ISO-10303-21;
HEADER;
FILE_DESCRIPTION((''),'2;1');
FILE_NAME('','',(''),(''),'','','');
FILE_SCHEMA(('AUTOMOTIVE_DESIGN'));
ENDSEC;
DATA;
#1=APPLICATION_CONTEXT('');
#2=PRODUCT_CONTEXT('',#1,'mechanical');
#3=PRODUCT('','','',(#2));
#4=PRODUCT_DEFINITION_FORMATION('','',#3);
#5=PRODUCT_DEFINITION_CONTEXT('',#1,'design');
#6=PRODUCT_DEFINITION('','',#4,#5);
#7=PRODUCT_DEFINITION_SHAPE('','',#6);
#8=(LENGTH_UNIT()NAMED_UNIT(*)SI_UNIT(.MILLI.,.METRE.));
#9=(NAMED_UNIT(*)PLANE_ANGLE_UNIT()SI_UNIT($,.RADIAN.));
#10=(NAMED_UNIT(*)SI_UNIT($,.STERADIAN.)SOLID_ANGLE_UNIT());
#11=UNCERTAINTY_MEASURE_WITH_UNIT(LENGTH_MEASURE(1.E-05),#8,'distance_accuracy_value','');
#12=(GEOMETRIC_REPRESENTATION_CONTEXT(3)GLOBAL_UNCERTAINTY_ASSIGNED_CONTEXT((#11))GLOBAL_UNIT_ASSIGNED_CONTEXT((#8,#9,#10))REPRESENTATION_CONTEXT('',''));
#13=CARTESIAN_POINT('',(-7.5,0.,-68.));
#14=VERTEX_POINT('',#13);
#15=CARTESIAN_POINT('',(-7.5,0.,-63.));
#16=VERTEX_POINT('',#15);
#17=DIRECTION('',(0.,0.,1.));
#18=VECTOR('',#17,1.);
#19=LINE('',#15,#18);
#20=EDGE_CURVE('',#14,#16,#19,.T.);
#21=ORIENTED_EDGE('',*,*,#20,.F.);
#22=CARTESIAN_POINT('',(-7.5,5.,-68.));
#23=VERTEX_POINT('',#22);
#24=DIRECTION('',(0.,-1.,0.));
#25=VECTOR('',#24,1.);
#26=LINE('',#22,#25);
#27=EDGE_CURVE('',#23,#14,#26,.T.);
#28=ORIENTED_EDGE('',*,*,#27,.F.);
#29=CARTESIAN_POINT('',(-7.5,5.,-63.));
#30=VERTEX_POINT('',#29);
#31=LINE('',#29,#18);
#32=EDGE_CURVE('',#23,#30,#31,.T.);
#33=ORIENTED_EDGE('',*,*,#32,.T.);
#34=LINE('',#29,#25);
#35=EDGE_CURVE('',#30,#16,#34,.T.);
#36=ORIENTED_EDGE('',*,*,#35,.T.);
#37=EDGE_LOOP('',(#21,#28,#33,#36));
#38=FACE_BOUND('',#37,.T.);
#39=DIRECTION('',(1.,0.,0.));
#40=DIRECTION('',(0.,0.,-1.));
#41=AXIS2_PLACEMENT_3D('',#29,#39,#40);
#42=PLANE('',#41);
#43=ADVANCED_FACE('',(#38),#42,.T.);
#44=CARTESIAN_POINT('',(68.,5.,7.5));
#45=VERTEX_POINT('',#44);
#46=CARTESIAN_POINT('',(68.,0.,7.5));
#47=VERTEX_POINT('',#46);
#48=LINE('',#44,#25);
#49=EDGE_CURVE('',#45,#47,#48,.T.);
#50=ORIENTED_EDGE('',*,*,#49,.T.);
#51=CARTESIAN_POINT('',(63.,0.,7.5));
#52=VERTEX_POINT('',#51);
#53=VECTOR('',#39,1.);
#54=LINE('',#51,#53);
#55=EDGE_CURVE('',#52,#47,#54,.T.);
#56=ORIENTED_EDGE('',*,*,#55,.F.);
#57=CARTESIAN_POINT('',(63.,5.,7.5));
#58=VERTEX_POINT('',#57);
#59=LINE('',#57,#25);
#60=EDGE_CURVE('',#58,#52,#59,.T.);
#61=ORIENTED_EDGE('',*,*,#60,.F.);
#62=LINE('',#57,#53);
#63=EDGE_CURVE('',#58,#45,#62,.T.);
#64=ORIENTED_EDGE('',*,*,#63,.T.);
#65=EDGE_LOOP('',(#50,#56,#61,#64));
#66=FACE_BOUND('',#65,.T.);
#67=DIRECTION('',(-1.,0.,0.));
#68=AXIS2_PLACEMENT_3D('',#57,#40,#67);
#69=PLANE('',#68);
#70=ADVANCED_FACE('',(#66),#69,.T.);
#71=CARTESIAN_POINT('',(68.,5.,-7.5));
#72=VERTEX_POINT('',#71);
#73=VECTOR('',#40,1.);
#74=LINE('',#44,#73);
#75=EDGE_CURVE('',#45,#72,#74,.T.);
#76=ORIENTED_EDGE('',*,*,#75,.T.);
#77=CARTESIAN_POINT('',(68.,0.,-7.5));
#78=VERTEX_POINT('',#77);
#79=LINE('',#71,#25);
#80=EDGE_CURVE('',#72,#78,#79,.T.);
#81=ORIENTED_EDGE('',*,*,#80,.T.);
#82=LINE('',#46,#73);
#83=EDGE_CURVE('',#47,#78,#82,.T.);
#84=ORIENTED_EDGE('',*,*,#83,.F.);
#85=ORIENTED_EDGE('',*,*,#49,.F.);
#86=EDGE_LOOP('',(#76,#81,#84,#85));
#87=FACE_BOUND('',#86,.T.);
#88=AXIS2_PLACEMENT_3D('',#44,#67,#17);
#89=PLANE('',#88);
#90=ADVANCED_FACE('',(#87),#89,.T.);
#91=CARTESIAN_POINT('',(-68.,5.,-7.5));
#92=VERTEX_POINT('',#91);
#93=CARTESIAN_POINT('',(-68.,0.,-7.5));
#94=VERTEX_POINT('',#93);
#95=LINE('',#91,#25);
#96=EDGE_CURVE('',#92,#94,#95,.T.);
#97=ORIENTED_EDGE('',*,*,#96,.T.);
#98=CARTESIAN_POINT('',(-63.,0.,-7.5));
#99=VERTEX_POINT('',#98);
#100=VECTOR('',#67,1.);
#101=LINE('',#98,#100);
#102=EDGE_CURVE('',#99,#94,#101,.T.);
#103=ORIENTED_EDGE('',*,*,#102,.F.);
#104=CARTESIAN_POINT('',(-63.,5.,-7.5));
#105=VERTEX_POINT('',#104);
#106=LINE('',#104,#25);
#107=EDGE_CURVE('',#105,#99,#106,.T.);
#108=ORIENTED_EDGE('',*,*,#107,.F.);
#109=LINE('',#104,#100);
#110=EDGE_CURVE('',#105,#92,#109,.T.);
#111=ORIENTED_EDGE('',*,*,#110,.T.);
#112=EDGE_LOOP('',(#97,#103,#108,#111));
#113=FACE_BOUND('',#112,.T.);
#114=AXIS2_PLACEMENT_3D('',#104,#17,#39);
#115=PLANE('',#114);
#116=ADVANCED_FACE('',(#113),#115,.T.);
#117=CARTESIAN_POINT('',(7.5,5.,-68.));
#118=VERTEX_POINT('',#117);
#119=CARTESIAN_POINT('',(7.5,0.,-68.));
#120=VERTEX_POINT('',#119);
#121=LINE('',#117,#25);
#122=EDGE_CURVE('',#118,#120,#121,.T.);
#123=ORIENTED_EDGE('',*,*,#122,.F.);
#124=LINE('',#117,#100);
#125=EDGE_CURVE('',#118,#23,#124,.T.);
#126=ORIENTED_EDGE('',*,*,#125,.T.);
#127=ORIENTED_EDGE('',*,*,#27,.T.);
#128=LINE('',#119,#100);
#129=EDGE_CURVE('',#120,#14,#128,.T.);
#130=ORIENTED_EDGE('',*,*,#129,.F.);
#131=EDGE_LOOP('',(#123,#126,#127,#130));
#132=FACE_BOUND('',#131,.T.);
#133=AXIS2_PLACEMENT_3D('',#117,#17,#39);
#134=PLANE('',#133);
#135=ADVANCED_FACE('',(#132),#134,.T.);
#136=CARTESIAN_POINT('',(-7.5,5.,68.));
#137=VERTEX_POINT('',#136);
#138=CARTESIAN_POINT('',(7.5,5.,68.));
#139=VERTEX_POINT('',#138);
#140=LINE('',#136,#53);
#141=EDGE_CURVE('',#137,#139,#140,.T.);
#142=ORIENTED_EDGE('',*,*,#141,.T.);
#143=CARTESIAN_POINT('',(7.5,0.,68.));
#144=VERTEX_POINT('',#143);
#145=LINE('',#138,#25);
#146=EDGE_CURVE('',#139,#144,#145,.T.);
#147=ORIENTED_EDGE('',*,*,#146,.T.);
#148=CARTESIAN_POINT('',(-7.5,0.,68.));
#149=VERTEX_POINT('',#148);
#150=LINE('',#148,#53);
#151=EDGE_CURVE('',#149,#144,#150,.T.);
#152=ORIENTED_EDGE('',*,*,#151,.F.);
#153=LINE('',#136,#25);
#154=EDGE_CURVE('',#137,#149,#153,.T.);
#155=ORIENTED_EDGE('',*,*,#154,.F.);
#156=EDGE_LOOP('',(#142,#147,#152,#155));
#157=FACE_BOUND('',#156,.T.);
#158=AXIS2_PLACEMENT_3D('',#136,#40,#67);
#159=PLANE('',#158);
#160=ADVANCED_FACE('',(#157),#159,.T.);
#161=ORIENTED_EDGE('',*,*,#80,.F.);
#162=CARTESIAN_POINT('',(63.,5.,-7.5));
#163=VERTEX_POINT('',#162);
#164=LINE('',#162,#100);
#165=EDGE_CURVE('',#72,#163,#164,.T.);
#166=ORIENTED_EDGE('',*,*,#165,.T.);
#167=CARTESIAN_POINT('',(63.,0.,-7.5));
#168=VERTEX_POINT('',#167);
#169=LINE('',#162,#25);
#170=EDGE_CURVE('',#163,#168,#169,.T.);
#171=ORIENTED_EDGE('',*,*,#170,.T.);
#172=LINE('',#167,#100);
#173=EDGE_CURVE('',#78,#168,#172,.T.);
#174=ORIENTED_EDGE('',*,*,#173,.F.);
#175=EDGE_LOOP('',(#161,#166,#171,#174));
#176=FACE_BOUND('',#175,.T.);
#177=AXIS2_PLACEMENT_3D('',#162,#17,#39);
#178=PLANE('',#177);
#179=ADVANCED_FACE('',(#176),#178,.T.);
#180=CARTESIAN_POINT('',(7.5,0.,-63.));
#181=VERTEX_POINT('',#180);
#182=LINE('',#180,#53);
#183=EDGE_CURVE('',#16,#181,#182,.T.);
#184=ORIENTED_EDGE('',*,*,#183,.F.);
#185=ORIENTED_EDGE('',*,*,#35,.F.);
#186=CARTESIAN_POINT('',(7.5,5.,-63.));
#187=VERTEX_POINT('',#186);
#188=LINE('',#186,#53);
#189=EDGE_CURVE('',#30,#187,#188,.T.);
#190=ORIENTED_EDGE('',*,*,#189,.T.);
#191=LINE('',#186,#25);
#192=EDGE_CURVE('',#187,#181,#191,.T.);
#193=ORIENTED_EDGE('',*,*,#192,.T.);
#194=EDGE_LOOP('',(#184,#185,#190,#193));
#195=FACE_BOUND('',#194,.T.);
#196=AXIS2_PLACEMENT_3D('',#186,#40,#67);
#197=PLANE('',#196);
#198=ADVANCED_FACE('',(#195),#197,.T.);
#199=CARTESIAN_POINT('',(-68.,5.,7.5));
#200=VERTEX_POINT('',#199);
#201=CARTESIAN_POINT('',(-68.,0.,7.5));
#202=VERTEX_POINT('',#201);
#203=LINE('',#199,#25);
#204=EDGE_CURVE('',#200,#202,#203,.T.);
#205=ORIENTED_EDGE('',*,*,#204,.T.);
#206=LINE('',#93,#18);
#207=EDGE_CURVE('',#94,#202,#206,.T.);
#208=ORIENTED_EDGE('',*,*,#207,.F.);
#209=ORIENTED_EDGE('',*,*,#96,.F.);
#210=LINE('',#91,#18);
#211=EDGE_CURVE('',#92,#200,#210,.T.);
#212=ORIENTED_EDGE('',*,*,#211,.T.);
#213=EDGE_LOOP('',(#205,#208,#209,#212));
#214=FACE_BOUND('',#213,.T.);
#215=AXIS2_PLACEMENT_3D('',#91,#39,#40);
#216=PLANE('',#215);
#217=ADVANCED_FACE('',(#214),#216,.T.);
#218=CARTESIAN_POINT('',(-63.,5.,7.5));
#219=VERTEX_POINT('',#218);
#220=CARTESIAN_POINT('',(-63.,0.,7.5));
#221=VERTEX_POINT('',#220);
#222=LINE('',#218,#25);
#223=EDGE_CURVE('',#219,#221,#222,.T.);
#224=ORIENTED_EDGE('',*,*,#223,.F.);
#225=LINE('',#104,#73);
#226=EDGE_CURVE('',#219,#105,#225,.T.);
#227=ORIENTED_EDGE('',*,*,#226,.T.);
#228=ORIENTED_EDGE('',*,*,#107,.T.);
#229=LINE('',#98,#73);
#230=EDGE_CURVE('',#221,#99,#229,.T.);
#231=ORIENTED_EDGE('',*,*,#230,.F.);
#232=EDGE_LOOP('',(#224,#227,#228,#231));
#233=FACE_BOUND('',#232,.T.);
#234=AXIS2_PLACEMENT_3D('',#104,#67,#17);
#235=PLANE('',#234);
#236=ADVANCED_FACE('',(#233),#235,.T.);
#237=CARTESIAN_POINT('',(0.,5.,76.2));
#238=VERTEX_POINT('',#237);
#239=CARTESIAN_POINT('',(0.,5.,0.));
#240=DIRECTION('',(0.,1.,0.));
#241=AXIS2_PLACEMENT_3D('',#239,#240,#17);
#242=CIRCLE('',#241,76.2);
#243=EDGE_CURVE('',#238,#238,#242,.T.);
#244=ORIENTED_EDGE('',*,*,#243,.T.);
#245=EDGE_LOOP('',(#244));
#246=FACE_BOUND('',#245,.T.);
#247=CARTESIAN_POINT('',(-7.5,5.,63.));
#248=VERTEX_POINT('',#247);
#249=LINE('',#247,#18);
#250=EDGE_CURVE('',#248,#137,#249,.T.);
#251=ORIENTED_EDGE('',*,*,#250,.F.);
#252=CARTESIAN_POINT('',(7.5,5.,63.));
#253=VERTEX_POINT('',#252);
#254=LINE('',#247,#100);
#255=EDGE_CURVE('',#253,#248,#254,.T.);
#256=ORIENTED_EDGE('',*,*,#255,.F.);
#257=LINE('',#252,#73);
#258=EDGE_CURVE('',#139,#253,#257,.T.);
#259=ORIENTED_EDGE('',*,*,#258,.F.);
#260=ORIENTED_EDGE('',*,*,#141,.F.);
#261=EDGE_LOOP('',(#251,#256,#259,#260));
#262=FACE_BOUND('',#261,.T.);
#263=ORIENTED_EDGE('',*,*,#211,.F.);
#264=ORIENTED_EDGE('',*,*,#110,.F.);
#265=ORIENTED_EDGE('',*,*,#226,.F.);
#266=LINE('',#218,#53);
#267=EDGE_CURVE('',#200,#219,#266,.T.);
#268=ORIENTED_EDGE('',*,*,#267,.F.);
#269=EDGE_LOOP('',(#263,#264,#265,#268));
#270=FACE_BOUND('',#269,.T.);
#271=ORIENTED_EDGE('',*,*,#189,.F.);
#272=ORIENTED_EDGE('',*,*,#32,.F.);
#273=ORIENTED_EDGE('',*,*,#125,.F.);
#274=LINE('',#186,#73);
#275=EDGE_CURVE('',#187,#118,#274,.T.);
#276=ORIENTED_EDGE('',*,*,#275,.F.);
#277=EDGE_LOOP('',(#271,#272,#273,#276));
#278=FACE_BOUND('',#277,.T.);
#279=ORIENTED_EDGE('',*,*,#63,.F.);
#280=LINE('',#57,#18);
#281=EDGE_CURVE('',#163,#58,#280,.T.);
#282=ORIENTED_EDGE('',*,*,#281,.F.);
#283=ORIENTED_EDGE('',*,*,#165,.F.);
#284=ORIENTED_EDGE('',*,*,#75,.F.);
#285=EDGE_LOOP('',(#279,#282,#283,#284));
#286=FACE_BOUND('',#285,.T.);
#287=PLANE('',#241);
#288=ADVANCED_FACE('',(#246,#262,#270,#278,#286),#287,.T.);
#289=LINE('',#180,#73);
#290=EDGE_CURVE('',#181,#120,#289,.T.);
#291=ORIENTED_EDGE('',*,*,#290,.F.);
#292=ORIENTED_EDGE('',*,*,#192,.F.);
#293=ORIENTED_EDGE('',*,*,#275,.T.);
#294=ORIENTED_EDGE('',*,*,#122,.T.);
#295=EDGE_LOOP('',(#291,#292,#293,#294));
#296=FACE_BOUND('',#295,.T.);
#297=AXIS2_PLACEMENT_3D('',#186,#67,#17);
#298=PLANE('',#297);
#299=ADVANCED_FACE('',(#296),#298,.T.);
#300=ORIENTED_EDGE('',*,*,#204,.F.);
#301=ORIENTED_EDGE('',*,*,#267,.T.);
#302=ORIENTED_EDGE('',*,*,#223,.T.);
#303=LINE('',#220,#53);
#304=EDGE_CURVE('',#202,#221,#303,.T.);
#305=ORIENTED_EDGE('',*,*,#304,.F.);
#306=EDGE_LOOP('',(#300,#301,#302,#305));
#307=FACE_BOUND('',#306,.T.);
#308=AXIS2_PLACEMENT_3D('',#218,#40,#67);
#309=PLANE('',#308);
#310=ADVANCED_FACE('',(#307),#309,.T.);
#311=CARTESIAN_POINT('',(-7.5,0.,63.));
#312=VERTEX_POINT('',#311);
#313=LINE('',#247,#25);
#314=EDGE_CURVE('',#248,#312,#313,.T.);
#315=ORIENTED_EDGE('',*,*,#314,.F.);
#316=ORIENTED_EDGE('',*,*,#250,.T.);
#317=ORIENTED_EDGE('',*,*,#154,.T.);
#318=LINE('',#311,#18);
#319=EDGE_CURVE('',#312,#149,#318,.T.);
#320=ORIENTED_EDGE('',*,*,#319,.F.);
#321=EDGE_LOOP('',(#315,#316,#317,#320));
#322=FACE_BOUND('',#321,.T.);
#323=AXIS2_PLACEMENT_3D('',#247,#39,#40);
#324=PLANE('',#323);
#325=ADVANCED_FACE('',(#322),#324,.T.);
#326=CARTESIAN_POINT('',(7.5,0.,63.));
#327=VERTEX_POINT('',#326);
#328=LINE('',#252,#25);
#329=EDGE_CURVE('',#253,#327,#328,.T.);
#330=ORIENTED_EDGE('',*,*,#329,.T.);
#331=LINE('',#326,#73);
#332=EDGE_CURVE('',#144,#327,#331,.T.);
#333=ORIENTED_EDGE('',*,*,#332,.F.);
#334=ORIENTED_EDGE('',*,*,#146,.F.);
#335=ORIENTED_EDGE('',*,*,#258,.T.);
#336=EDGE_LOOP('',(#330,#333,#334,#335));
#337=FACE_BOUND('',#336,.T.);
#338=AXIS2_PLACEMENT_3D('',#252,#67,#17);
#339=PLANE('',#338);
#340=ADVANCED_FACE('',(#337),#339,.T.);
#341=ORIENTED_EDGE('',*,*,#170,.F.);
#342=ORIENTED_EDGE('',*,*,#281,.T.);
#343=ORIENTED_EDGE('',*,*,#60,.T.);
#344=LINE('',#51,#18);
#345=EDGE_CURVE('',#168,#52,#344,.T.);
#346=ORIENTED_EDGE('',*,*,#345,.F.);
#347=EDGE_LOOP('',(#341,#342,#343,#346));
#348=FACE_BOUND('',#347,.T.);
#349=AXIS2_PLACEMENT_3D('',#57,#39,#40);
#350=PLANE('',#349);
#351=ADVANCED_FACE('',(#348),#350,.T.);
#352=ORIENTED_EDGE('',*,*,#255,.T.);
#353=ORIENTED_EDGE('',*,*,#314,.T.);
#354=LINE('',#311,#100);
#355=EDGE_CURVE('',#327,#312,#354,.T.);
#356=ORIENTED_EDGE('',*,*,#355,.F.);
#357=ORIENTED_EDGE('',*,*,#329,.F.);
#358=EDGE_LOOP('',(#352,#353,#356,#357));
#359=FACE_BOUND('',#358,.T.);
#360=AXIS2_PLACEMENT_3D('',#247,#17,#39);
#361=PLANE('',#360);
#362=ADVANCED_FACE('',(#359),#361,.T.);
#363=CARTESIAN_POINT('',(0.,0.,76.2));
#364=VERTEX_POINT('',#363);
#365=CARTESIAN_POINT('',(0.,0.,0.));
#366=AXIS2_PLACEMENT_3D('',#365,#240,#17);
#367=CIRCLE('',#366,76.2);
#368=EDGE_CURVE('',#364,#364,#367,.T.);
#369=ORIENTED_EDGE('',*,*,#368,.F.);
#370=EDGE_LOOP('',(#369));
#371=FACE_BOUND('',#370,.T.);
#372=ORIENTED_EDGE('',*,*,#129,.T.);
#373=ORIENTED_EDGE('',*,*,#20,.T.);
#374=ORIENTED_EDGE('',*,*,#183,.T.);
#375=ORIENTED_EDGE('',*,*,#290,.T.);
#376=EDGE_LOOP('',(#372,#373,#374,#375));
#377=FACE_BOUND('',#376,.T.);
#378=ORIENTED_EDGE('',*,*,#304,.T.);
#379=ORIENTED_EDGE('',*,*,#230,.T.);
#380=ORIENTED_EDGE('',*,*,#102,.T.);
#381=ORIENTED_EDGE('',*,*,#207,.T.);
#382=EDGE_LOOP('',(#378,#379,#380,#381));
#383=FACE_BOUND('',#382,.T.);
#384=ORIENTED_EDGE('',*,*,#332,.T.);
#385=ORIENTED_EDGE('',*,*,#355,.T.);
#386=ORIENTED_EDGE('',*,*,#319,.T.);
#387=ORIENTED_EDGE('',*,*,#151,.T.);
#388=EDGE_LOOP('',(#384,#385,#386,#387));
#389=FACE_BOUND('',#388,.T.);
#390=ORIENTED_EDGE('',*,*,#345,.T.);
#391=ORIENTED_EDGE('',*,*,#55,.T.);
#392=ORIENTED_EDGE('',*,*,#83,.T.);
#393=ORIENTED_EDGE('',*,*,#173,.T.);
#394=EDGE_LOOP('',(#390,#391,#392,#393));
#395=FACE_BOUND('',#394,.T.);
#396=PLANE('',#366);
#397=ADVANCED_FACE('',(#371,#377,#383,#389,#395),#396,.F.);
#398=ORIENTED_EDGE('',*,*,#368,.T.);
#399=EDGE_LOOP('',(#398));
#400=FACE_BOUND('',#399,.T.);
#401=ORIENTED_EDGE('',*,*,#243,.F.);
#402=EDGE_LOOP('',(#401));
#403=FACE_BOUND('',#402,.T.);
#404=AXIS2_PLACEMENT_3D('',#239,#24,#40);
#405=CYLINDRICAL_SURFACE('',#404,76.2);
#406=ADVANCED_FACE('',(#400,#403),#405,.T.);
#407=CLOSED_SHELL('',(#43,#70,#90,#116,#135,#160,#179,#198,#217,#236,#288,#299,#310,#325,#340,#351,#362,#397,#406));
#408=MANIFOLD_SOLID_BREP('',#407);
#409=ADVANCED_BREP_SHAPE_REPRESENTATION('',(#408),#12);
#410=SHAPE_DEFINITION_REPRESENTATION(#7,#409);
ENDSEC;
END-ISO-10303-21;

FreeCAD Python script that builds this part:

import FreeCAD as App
import Part
import Sketcher
from FreeCAD import Vector
Q = App.Units.Quantity

doc = App.newDocument("Part")
body = doc.addObject("PartDesign::Body", "Body")

sketch1 = body.newObject("Sketcher::SketchObject", "Sketch")
sketch1.AttachmentSupport = (doc.getObject("XZ_Plane"), [""])
sketch1.MapMode = "FlatFace"
sketch1.addGeometry(Part.Circle(Vector(0, 0, 0), Vector(0, 0, 1), 76), False)
sketch1.addGeometry(Part.LineSegment(Vector(8, -63, 0), Vector(-8, -63, 0)), False)
sketch1.addGeometry(Part.LineSegment(Vector(-8, -63, 0), Vector(-8, -68, 0)), False)
sketch1.addGeometry(Part.LineSegment(Vector(-8, -68, 0), Vector(8, -68, 0)), False)
sketch1.addGeometry(Part.LineSegment(Vector(8, -68, 0), Vector(8, -63, 0)), False)
sketch1.addGeometry(Part.LineSegment(Vector(-63, 8, 0), Vector(-68, 8, 0)), False)
sketch1.addGeometry(Part.LineSegment(Vector(-68, 8, 0), Vector(-68, -8, 0)), False)
sketch1.addGeometry(Part.LineSegment(Vector(-68, -8, 0), Vector(-63, -8, 0)), False)
sketch1.addGeometry(Part.LineSegment(Vector(-63, -8, 0), Vector(-63, 8, 0)), False)
sketch1.addGeometry(Part.LineSegment(Vector(68, 8, 0), Vector(63, 8, 0)), False)
sketch1.addGeometry(Part.LineSegment(Vector(63, 8, 0), Vector(63, -8, 0)), False)
sketch1.addGeometry(Part.LineSegment(Vector(63, -8, 0), Vector(68, -8, 0)), False)
sketch1.addGeometry(Part.LineSegment(Vector(68, -8, 0), Vector(68, 8, 0)), False)
sketch1.addGeometry(Part.LineSegment(Vector(8, 68, 0), Vector(-8, 68, 0)), False)
sketch1.addGeometry(Part.LineSegment(Vector(-8, 68, 0), Vector(-8, 63, 0)), False)
sketch1.addGeometry(Part.LineSegment(Vector(-8, 63, 0), Vector(8, 63, 0)), False)
sketch1.addGeometry(Part.LineSegment(Vector(8, 63, 0), Vector(8, 68, 0)), False)
sketch1.addConstraint(Sketcher.Constraint("Coincident", 1, 2, 2, 1))
sketch1.addConstraint(Sketcher.Constraint("Coincident", 2, 2, 3, 1))
sketch1.addConstraint(Sketcher.Constraint("Coincident", 3, 2, 4, 1))
sketch1.addConstraint(Sketcher.Constraint("Coincident", 4, 2, 1, 1))
sketch1.addConstraint(Sketcher.Constraint("Coincident", 5, 2, 6, 1))
sketch1.addConstraint(Sketcher.Constraint("Coincident", 6, 2, 7, 1))
sketch1.addConstraint(Sketcher.Constraint("Coincident", 7, 2, 8, 1))
sketch1.addConstraint(Sketcher.Constraint("Coincident", 8, 2, 5, 1))
sketch1.addConstraint(Sketcher.Constraint("Coincident", 9, 2, 10, 1))
sketch1.addConstraint(Sketcher.Constraint("Coincident", 10, 2, 11, 1))
sketch1.addConstraint(Sketcher.Constraint("Coincident", 11, 2, 12, 1))
sketch1.addConstraint(Sketcher.Constraint("Coincident", 12, 2, 9, 1))
sketch1.addConstraint(Sketcher.Constraint("Coincident", 13, 2, 14, 1))
sketch1.addConstraint(Sketcher.Constraint("Coincident", 14, 2, 15, 1))
sketch1.addConstraint(Sketcher.Constraint("Coincident", 15, 2, 16, 1))
sketch1.addConstraint(Sketcher.Constraint("Coincident", 16, 2, 13, 1))
sketch1.addConstraint(Sketcher.Constraint("Horizontal", 1))
sketch1.addConstraint(Sketcher.Constraint("Vertical", 2))
sketch1.addConstraint(Sketcher.Constraint("Horizontal", 3))
sketch1.addConstraint(Sketcher.Constraint("Vertical", 4))
sketch1.addConstraint(Sketcher.Constraint("Horizontal", 5))
sketch1.addConstraint(Sketcher.Constraint("Vertical", 6))
sketch1.addConstraint(Sketcher.Constraint("Horizontal", 7))
sketch1.addConstraint(Sketcher.Constraint("Vertical", 8))
sketch1.addConstraint(Sketcher.Constraint("Horizontal", 9))
sketch1.addConstraint(Sketcher.Constraint("Vertical", 10))
sketch1.addConstraint(Sketcher.Constraint("Horizontal", 11))
sketch1.addConstraint(Sketcher.Constraint("Vertical", 12))
sketch1.addConstraint(Sketcher.Constraint("Horizontal", 13))
sketch1.addConstraint(Sketcher.Constraint("Vertical", 14))
sketch1.addConstraint(Sketcher.Constraint("Horizontal", 15))
sketch1.addConstraint(Sketcher.Constraint("Vertical", 16))
sketch1.addConstraint(Sketcher.Constraint("Coincident", 0, 3, -1, 1))
sketch1.addConstraint(Sketcher.Constraint("Symmetric", 7, 2, 9, 2, -1, 1))
sketch1.addConstraint(Sketcher.Constraint("Symmetric", 5, 2, 11, 2, -1, 1))
sketch1.addConstraint(Sketcher.Constraint("Symmetric", 3, 2, 13, 2, -1, 1))
sketch1.addConstraint(Sketcher.Constraint("Symmetric", 1, 2, 15, 2, -1, 1))
sketch1.addConstraint(Sketcher.Constraint("Horizontal", 8, 2, 9, 2))
sketch1.addConstraint(Sketcher.Constraint("Vertical", 2, 2, 13, 2))
sketch1.addConstraint(Sketcher.Constraint("Equal", 11, 2))
sketch1.addConstraint(Sketcher.Constraint("Equal", 15, 6))
sketch1.addConstraint(Sketcher.Constraint("Diameter", 0, Q("152.4 mm")))
sketch1.addConstraint(Sketcher.Constraint("DistanceX", 1, 2, 1, 1, Q("15 mm")))
sketch1.addConstraint(Sketcher.Constraint("DistanceX", 5, 2, 5, 1, Q("5 mm")))
sketch1.addConstraint(Sketcher.Constraint("DistanceY", 1, 2, -1, 1, Q("63 mm")))
sketch1.addConstraint(Sketcher.Constraint("DistanceX", 5, 2, -1, 1, Q("68 mm")))
pad1 = body.newObject("PartDesign::Pad", "Pad")
pad1.Profile = sketch1
pad1.Length = 5
pad1.Reversed = True

doc.recompute()
